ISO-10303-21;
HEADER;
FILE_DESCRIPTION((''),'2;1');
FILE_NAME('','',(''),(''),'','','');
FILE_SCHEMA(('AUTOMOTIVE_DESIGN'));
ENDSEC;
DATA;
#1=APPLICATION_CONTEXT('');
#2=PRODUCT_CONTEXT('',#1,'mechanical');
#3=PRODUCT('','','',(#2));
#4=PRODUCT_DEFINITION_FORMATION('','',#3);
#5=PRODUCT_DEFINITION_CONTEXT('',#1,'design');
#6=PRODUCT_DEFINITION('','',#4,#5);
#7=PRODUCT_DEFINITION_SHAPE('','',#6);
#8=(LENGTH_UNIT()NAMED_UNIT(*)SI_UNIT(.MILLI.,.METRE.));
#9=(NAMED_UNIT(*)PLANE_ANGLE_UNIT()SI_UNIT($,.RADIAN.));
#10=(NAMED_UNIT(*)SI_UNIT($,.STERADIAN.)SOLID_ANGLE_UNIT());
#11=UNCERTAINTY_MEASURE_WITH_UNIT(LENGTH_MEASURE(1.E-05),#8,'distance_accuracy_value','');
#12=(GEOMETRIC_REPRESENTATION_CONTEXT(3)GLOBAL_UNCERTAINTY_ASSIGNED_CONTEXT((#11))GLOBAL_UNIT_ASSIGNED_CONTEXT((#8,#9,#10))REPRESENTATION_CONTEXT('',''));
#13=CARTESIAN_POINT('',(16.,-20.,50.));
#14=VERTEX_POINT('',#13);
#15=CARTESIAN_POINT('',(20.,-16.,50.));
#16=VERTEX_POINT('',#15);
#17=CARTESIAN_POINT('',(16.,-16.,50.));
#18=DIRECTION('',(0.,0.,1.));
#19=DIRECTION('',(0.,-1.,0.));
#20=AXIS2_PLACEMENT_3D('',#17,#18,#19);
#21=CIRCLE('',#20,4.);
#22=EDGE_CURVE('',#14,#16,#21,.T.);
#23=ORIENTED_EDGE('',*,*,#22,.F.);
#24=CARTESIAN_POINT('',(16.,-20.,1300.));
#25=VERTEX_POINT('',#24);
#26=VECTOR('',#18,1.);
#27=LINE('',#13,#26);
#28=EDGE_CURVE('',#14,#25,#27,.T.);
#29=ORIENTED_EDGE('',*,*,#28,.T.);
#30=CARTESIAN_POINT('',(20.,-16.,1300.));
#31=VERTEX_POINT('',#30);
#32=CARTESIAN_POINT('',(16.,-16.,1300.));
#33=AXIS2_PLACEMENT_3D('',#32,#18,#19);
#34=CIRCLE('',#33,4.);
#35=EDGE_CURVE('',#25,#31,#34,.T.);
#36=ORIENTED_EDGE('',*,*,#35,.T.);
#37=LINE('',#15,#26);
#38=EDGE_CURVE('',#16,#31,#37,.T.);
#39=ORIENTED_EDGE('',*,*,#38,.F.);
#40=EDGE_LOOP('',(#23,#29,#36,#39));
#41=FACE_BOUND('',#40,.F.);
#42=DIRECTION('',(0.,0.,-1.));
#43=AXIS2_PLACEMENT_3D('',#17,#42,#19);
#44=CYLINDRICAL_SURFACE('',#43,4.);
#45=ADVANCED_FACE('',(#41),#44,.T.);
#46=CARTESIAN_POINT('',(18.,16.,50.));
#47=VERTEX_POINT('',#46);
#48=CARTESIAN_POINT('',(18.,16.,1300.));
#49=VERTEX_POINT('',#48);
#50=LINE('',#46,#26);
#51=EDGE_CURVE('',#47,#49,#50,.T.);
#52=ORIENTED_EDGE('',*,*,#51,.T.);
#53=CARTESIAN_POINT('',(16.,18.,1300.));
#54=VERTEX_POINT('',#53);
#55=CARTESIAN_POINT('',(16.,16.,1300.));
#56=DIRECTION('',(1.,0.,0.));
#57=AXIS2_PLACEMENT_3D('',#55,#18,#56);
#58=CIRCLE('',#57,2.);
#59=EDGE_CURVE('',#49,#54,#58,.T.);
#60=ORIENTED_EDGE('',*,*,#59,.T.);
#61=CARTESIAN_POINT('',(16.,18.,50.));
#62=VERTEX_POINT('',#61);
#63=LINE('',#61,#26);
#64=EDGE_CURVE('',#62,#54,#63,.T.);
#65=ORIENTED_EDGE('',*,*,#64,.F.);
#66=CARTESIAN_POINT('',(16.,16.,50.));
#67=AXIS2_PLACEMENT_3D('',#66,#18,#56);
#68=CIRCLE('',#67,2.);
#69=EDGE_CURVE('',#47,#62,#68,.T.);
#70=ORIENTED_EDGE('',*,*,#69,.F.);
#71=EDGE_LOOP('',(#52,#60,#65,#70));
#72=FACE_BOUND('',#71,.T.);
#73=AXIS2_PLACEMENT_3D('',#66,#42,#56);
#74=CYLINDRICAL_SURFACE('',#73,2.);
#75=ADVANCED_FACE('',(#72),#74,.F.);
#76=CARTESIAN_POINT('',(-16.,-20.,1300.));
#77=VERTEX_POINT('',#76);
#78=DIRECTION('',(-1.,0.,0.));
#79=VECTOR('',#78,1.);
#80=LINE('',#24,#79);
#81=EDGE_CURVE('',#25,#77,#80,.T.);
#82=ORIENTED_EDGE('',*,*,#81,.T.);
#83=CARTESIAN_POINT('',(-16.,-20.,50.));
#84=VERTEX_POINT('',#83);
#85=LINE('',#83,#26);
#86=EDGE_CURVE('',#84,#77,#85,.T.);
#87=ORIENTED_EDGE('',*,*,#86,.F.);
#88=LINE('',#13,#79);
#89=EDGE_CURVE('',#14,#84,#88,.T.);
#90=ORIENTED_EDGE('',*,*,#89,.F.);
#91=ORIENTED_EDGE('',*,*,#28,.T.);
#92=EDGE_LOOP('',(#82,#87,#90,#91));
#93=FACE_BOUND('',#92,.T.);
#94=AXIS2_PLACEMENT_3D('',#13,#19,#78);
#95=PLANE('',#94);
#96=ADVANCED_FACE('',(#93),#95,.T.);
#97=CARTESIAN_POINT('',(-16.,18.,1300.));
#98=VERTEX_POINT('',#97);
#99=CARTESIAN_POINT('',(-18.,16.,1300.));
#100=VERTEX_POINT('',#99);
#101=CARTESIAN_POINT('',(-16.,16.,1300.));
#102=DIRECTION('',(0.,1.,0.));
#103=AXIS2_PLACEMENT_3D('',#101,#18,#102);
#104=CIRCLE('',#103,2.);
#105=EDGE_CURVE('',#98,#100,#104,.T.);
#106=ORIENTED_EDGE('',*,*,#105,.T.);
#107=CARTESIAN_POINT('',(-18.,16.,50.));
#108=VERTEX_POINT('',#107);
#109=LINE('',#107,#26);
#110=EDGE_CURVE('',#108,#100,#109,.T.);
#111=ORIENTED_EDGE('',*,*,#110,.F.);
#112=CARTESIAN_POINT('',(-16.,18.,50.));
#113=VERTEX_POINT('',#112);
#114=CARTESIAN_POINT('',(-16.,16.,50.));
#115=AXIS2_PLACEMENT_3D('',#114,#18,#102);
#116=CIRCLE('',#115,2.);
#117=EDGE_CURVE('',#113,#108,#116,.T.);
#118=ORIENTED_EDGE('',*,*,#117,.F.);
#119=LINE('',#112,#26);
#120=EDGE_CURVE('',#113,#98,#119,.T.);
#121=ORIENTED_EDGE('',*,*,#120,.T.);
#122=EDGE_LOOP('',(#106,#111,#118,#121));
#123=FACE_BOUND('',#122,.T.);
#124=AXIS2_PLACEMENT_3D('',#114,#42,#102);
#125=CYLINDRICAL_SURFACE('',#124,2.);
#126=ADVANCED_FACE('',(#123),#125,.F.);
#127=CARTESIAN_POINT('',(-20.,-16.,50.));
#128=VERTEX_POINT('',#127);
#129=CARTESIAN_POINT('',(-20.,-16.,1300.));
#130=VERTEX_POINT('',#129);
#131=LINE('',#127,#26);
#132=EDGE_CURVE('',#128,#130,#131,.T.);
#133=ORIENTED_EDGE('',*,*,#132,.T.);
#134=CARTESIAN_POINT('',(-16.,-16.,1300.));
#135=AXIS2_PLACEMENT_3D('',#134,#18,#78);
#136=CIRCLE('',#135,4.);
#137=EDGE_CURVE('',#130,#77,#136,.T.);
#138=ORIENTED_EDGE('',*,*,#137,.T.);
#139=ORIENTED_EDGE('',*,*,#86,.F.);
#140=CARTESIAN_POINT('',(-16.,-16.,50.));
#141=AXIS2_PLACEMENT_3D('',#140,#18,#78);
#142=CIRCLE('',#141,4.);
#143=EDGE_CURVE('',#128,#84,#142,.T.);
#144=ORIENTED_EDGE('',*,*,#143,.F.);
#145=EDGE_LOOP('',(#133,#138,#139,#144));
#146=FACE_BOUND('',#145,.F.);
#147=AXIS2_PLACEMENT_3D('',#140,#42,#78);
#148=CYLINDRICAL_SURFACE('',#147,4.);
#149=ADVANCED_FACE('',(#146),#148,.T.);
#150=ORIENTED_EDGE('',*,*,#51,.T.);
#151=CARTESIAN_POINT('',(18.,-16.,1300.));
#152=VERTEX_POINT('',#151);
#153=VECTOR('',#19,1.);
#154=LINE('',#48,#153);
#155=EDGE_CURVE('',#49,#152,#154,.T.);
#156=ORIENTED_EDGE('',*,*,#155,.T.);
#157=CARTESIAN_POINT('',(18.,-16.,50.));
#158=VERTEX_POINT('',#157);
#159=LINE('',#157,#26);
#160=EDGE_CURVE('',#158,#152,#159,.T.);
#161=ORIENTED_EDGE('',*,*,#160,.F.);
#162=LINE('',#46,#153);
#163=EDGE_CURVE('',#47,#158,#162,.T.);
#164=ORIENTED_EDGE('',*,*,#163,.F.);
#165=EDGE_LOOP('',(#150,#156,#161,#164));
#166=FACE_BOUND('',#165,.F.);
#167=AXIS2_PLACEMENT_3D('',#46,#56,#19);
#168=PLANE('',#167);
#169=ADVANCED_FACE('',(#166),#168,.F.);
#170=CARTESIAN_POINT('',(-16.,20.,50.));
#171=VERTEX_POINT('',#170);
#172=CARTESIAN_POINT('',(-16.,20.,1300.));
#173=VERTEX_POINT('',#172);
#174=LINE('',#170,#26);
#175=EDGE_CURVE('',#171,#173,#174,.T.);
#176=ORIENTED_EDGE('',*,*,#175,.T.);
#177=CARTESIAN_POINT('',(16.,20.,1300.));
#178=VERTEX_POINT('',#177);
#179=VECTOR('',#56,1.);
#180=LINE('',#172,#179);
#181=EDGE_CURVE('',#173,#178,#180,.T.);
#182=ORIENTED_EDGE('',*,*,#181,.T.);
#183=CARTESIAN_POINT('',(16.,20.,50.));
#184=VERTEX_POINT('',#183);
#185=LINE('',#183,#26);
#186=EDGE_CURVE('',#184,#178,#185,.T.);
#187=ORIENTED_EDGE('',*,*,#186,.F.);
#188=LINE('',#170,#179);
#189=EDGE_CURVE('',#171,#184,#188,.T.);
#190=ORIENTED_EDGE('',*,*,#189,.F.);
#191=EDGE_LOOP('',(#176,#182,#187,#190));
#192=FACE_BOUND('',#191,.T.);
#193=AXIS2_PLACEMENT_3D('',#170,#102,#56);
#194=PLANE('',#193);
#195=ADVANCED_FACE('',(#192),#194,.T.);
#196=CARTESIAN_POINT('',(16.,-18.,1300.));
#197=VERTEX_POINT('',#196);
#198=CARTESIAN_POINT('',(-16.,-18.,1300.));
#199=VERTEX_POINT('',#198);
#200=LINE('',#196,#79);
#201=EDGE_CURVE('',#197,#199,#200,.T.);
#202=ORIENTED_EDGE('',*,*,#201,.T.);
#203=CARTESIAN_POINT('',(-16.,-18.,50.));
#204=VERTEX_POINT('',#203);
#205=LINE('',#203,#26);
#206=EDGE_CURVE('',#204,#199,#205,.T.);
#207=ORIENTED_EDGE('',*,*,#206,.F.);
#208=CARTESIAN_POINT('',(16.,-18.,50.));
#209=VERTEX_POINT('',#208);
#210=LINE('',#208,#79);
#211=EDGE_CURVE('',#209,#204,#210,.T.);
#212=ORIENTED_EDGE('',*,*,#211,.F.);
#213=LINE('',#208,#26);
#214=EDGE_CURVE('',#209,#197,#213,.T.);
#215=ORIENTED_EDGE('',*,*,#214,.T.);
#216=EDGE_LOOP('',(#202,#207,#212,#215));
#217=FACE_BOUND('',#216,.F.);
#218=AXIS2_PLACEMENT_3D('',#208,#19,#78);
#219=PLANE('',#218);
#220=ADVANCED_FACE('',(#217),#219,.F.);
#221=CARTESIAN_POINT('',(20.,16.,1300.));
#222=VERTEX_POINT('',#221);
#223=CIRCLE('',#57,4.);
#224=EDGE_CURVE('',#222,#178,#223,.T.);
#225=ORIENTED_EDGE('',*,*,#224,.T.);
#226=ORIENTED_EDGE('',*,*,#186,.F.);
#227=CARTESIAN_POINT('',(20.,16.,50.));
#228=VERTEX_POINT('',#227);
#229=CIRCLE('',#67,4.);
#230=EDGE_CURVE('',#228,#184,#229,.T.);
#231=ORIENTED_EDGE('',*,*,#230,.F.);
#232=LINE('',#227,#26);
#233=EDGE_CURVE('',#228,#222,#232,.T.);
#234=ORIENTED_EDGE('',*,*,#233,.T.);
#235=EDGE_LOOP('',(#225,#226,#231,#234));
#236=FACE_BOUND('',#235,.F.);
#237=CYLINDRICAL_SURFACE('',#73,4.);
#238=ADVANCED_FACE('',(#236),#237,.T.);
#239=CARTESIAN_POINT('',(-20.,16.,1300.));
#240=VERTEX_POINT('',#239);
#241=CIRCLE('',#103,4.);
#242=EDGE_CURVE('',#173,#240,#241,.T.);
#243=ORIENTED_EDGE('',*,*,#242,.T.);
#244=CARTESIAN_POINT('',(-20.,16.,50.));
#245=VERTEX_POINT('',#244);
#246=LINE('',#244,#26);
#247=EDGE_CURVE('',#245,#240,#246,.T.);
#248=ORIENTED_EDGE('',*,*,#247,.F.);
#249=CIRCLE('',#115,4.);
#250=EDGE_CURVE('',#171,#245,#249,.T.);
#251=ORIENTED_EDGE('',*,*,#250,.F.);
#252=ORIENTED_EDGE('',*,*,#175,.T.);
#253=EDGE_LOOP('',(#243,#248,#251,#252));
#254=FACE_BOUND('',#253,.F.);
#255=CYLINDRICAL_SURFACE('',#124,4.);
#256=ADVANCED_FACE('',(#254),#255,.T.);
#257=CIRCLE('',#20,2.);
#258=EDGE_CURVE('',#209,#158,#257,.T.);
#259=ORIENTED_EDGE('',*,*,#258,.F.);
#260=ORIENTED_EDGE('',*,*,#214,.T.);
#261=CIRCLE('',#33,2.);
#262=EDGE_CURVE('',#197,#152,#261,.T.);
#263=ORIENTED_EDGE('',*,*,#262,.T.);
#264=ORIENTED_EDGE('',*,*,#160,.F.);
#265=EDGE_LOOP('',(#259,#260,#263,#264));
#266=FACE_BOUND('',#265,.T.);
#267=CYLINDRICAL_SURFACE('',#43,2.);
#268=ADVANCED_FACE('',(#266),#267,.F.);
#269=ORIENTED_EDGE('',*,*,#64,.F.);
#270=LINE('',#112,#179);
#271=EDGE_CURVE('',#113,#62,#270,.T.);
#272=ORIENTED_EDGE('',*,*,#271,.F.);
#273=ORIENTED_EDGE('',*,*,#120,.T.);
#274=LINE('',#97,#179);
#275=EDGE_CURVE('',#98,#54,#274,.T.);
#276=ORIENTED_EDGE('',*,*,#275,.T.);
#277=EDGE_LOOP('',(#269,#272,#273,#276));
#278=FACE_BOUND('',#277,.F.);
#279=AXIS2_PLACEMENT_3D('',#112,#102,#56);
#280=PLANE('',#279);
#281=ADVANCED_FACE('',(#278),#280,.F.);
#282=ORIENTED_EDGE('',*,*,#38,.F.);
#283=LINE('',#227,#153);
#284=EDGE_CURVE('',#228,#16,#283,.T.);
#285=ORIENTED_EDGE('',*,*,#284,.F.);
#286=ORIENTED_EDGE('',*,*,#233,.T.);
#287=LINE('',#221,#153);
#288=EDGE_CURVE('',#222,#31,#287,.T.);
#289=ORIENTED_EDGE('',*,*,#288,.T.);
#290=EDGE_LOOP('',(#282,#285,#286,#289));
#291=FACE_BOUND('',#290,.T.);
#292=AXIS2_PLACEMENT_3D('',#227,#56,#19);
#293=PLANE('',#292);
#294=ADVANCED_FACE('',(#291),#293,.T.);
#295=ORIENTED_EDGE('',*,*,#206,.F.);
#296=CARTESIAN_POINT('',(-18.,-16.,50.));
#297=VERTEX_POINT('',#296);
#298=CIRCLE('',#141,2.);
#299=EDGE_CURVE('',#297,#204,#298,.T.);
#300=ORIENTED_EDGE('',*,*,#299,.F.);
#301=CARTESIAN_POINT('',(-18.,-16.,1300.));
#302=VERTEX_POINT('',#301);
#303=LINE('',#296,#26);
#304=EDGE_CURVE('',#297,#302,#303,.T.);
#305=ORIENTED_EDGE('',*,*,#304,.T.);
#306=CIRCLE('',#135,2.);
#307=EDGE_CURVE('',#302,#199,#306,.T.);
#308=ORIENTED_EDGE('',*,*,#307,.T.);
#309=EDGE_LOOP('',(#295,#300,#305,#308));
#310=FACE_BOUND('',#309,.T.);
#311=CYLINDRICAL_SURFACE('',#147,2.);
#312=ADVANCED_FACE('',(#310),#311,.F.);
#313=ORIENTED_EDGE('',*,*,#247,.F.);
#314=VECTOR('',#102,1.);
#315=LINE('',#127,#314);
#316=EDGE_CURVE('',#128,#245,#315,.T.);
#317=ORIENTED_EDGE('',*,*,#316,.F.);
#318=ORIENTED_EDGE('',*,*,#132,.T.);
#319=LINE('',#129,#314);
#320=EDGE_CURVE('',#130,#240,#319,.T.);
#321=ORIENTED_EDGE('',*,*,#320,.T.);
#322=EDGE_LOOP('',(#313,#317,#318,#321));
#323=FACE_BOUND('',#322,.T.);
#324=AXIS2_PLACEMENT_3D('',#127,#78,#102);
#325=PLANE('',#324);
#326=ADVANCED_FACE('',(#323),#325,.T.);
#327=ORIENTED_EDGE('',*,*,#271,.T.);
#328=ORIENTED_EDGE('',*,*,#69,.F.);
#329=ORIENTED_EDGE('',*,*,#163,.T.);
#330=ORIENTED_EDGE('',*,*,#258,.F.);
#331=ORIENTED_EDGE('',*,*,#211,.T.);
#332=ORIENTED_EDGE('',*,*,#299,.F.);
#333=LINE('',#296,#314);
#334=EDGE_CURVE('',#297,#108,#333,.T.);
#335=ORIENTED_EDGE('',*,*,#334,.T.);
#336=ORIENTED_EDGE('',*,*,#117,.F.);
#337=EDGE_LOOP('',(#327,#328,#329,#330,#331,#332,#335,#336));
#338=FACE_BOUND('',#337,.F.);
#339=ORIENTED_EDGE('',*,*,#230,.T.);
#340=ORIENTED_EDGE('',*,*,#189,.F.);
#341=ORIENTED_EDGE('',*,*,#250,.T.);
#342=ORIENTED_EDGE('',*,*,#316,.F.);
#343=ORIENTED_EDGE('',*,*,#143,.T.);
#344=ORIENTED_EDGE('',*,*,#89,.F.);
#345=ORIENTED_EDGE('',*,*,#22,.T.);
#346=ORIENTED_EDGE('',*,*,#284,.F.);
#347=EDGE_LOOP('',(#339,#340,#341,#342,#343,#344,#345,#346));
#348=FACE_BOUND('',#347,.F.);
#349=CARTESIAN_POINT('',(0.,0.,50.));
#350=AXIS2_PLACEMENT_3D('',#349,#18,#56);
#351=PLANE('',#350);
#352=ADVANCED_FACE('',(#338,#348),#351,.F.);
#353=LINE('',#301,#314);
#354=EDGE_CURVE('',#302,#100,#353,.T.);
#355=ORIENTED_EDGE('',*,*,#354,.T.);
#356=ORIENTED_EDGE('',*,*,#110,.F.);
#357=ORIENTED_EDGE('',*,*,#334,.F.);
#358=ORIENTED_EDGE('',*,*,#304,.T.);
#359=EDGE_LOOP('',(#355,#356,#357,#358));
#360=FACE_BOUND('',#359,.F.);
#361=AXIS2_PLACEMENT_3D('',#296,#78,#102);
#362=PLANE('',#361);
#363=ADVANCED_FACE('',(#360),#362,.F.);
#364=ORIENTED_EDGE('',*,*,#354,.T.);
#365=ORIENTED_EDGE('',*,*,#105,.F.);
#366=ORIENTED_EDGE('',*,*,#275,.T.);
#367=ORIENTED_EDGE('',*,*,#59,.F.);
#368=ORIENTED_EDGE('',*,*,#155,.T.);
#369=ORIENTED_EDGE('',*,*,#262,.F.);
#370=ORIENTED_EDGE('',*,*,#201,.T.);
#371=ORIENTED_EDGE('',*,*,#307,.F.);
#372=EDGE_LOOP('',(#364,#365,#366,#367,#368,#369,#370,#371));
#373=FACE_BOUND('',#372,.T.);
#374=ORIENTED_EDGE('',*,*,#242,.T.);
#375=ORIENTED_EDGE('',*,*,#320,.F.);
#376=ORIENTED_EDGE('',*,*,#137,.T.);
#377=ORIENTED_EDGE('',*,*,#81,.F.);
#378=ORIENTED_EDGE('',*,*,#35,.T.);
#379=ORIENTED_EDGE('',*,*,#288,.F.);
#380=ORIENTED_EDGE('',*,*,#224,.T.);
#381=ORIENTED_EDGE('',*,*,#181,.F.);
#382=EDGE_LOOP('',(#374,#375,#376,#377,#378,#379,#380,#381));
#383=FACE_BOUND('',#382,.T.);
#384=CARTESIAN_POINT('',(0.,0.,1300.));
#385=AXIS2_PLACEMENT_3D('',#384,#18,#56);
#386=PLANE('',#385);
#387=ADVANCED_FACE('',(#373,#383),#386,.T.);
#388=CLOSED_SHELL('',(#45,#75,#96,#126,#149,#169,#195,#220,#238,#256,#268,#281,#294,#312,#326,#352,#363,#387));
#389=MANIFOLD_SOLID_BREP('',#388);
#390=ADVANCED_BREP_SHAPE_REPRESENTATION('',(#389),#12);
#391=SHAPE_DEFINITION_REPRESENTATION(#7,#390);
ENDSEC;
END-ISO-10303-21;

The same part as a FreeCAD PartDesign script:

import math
import FreeCAD as App
import Part
import Sketcher

V = App.Vector

doc = App.newDocument("Part")
body = doc.addObject("PartDesign::Body", "Body")

sketch1 = body.newObject("Sketcher::SketchObject", "Sketch")
sketch1.AttachmentSupport = (doc.getObject("XY_Plane"), [""])
sketch1.MapMode = "FlatFace"
sketch1.AttachmentOffset = App.Placement(V(0, 0, 50), App.Rotation())
sketch1.addGeometry(Part.LineSegment(V(-20, 16, 0), V(-20, -16, 0)), False)
sketch1.addGeometry(Part.ArcOfCircle(Part.Circle(V(-16, -16, 0), V(0, 0, 1), 4), math.radians(180), math.radians(270)), False)
sketch1.addGeometry(Part.LineSegment(V(-16, -20, 0), V(16, -20, 0)), False)
sketch1.addGeometry(Part.ArcOfCircle(Part.Circle(V(16, -16, 0), V(0, 0, 1), 4), math.radians(-90), math.radians(0)), False)
sketch1.addGeometry(Part.LineSegment(V(20, -16, 0), V(20, 16, 0)), False)
sketch1.addGeometry(Part.ArcOfCircle(Part.Circle(V(16, 16, 0), V(0, 0, 1), 4), math.radians(0), math.radians(90)), False)
sketch1.addGeometry(Part.LineSegment(V(16, 20, 0), V(-16, 20, 0)), False)
sketch1.addGeometry(Part.ArcOfCircle(Part.Circle(V(-16, 16, 0), V(0, 0, 1), 4), math.radians(90), math.radians(180)), False)
sketch1.addGeometry(Part.ArcOfCircle(Part.Circle(V(-16, 16, 0), V(0, 0, 1), 2), math.radians(90), math.radians(180)), False)
sketch1.addGeometry(Part.LineSegment(V(-16, 18, 0), V(16, 18, 0)), False)
sketch1.addGeometry(Part.ArcOfCircle(Part.Circle(V(16, 16, 0), V(0, 0, 1), 2), math.radians(0), math.radians(90)), False)
sketch1.addGeometry(Part.LineSegment(V(18, 16, 0), V(18, -16, 0)), False)
sketch1.addGeometry(Part.ArcOfCircle(Part.Circle(V(16, -16, 0), V(0, 0, 1), 2), math.radians(-90), math.radians(0)), False)
sketch1.addGeometry(Part.LineSegment(V(16, -18, 0), V(-16, -18, 0)), False)
sketch1.addGeometry(Part.ArcOfCircle(Part.Circle(V(-16, -16, 0), V(0, 0, 1), 2), math.radians(180), math.radians(270)), False)
sketch1.addGeometry(Part.LineSegment(V(-18, -16, 0), V(-18, 16, 0)), False)
sketch1.addConstraint(Sketcher.Constraint("Tangent", 0, 2, 1, 1))
sketch1.addConstraint(Sketcher.Constraint("Tangent", 1, 2, 2, 1))
sketch1.addConstraint(Sketcher.Constraint("Tangent", 2, 2, 3, 1))
sketch1.addConstraint(Sketcher.Constraint("Tangent", 3, 2, 4, 1))
sketch1.addConstraint(Sketcher.Constraint("Tangent", 4, 2, 5, 1))
sketch1.addConstraint(Sketcher.Constraint("Tangent", 5, 2, 6, 1))
sketch1.addConstraint(Sketcher.Constraint("Tangent", 6, 2, 7, 1))
sketch1.addConstraint(Sketcher.Constraint("Tangent", 7, 2, 0, 1))
sketch1.addConstraint(Sketcher.Constraint("Tangent", 8, 1, 9, 1))
sketch1.addConstraint(Sketcher.Constraint("Tangent", 9, 2, 10, 2))
sketch1.addConstraint(Sketcher.Constraint("Tangent", 10, 1, 11, 1))
sketch1.addConstraint(Sketcher.Constraint("Tangent", 11, 2, 12, 2))
sketch1.addConstraint(Sketcher.Constraint("Tangent", 12, 1, 13, 1))
sketch1.addConstraint(Sketcher.Constraint("Tangent", 13, 2, 14, 2))
sketch1.addConstraint(Sketcher.Constraint("Tangent", 14, 1, 15, 1))
sketch1.addConstraint(Sketcher.Constraint("Tangent", 15, 2, 8, 2))
sketch1.addConstraint(Sketcher.Constraint("Vertical", 0))
sketch1.addConstraint(Sketcher.Constraint("Horizontal", 2))
sketch1.addConstraint(Sketcher.Constraint("Vertical", 4))
sketch1.addConstraint(Sketcher.Constraint("Horizontal", 6))
sketch1.addConstraint(Sketcher.Constraint("Horizontal", 9))
sketch1.addConstraint(Sketcher.Constraint("Vertical", 11))
sketch1.addConstraint(Sketcher.Constraint("Horizontal", 13))
sketch1.addConstraint(Sketcher.Constraint("Vertical", 15))
sketch1.addConstraint(Sketcher.Constraint("Coincident", 8, 3, 7, 3))
sketch1.addConstraint(Sketcher.Constraint("Coincident", 10, 3, 5, 3))
sketch1.addConstraint(Sketcher.Constraint("Coincident", 12, 3, 3, 3))
sketch1.addConstraint(Sketcher.Constraint("Equal", 1, 3))
sketch1.addConstraint(Sketcher.Constraint("Equal", 3, 5))
sketch1.addConstraint(Sketcher.Constraint("Equal", 5, 7))
sketch1.addConstraint(Sketcher.Constraint("Equal", 12, 14))
sketch1.addConstraint(Sketcher.Constraint("Symmetric", 1, 3, 5, 3, -1, 1))
sketch1.addConstraint(Sketcher.Constraint("Equal", 13, 0))
sketch1.addConstraint(Sketcher.Constraint("Radius", 1, 4.0))
sketch1.addConstraint(Sketcher.Constraint("Radius", 8, 2.0))
sketch1.addConstraint(Sketcher.Constraint("DistanceX", 0, 2, -1, 1, 20.0))
pad1 = body.newObject("PartDesign::Pad", "Pad")
pad1.Profile = sketch1
pad1.Length = 1250

doc.recompute()
